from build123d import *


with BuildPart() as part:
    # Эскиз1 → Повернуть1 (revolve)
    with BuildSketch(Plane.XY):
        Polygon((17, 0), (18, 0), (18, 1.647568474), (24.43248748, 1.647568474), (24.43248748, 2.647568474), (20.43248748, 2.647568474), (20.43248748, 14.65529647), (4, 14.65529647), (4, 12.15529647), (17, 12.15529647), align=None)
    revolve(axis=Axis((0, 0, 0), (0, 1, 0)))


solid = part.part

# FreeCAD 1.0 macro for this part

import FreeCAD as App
import Part
import Sketcher
from FreeCAD import Vector
Q = App.Units.Quantity

doc = App.newDocument("Part")
body = doc.addObject("PartDesign::Body", "Body")

# Sketch on XY plane
sketch1 = body.newObject("Sketcher::SketchObject", "Sketch")
sketch1.AttachmentSupport = (doc.getObject("XY_Plane"), [""])
sketch1.MapMode = "FlatFace"
sketch1.addGeometry([
    Part.LineSegment(Vector(17, 0, 0), Vector(18, 0, 0)),  # 0
    Part.LineSegment(Vector(18, 0, 0), Vector(18, 1.6, 0)),  # 1
    Part.LineSegment(Vector(18, 1.6, 0), Vector(24.4, 1.6, 0)),  # 2
    Part.LineSegment(Vector(24.4, 1.6, 0), Vector(24.4, 2.6, 0)),  # 3
    Part.LineSegment(Vector(24.4, 2.6, 0), Vector(20.4, 2.6, 0)),  # 4
    Part.LineSegment(Vector(20.4, 2.6, 0), Vector(20.4, 14.7, 0)),  # 5
    Part.LineSegment(Vector(20.4, 14.7, 0), Vector(4, 14.7, 0)),  # 6
    Part.LineSegment(Vector(4, 14.7, 0), Vector(4, 12.2, 0)),  # 7
    Part.LineSegment(Vector(4, 12.2, 0), Vector(17, 12.2, 0)),  # 8
    Part.LineSegment(Vector(17, 12.2, 0), Vector(17, 0, 0)),  # 9
], False)
sketch1.addConstraint([
    Sketcher.Constraint("Coincident", 0, 2, 1, 1),
    Sketcher.Constraint("Coincident", 1, 2, 2, 1),
    Sketcher.Constraint("Coincident", 2, 2, 3, 1),
    Sketcher.Constraint("Coincident", 3, 2, 4, 1),
    Sketcher.Constraint("Coincident", 4, 2, 5, 1),
    Sketcher.Constraint("Coincident", 5, 2, 6, 1),
    Sketcher.Constraint("Coincident", 6, 2, 7, 1),
    Sketcher.Constraint("Coincident", 7, 2, 8, 1),
    Sketcher.Constraint("Coincident", 8, 2, 9, 1),
    Sketcher.Constraint("Coincident", 9, 2, 0, 1),
    Sketcher.Constraint("Horizontal", 0),
    Sketcher.Constraint("Vertical", 1),
    Sketcher.Constraint("Horizontal", 2),
    Sketcher.Constraint("Vertical", 3),
    Sketcher.Constraint("Horizontal", 4),
    Sketcher.Constraint("Vertical", 5),
    Sketcher.Constraint("Horizontal", 6),
    Sketcher.Constraint("Vertical", 7),
    Sketcher.Constraint("Horizontal", 8),
    Sketcher.Constraint("Vertical", 9),
    Sketcher.Constraint("PointOnObject", 0, 2, -1),
    Sketcher.Constraint("Equal", 0, 3),
    Sketcher.Constraint("DistanceX", 0, 1, 0, 2, Q("1 mm")),
    Sketcher.Constraint("DistanceX", 4, 2, 4, 1, Q("4 mm")),
    Sketcher.Constraint("DistanceX", 8, 1, 8, 2, Q("13 mm")),
    Sketcher.Constraint("DistanceY", 7, 2, 7, 1, Q("2.5 mm")),
    Sketcher.Constraint("DistanceX", -1, 1, 0, 2, Q("18 mm")),
    Sketcher.Constraint("DistanceY", 1, 1, 1, 2, Q("1.647568 mm")),
    Sketcher.Constraint("DistanceX", 2, 1, 2, 2, Q("6.432487 mm")),
    Sketcher.Constraint("DistanceY", 5, 1, 5, 2, Q("12.007728 mm")),
])
revolution = body.newObject("PartDesign::Revolution", "Revolution")
revolution.Profile = sketch1
revolution.ReferenceAxis = (sketch1, ["V_Axis"])
revolution.Angle = 360

doc.recompute()
